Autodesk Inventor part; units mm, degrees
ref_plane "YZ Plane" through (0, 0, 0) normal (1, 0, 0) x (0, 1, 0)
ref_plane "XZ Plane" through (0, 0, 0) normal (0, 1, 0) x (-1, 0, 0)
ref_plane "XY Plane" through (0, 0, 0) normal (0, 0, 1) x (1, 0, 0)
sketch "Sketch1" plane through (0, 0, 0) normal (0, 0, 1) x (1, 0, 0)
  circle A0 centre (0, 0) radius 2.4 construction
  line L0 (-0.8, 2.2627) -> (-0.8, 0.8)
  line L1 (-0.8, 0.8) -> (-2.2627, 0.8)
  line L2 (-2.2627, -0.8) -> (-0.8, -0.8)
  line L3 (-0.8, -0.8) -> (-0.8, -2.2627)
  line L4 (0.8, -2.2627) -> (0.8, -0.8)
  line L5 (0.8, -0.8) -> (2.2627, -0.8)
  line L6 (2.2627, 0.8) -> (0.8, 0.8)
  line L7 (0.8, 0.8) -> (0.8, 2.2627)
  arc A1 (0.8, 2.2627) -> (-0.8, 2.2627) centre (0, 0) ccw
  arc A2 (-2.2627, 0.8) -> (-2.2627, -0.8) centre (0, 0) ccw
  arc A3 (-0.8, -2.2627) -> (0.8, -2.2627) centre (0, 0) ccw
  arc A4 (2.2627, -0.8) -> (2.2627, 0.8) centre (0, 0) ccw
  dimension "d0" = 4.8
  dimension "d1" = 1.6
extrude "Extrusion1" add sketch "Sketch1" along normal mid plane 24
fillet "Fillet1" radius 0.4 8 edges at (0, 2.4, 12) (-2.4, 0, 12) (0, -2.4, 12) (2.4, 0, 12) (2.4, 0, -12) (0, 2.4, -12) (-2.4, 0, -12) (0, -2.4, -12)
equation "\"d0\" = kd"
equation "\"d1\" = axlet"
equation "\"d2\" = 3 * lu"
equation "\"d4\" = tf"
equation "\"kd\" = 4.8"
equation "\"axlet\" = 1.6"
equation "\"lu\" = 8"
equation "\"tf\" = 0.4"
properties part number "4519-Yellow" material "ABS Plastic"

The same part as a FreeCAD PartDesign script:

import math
import FreeCAD as App
import Part
import Sketcher
from FreeCAD import Vector
Q = App.Units.Quantity


def edges_at(feature, points):
    """Names of the edges that pass closest to the given points."""
    edges = feature.Shape.Edges
    near = lambda p: min(range(len(edges)), key=lambda i: edges[i].distToShape(Part.Vertex(*p))[0])
    return sorted({f"Edge{near(p) + 1}" for p in points})

doc = App.newDocument("Part")
body = doc.addObject("PartDesign::Body", "Body")

# Sketch on XY plane
sketch1 = doc.addObject("Sketcher::SketchObject", "Sketch")
body.addObject(sketch1)
sketch1.AttachmentSupport = (doc.XY_Plane, [""])
sketch1.MapMode = "FlatFace"
sketch1.addGeometry([
    Part.ArcOfCircle(Part.Circle(Vector(0, 0, 0), Vector(0, 0, 1), 2.4), math.radians(71), math.radians(109)),  # 0
    Part.LineSegment(Vector(-0.8, 2.3, 0), Vector(-0.8, 0.8, 0)),  # 1
    Part.LineSegment(Vector(-0.8, 0.8, 0), Vector(-2.3, 0.8, 0)),  # 2
    Part.ArcOfCircle(Part.Circle(Vector(0, 0, 0), Vector(0, 0, 1), 2.4), math.radians(161), math.radians(199)),  # 3
    Part.LineSegment(Vector(-2.3, -0.8, 0), Vector(-0.8, -0.8, 0)),  # 4
    Part.LineSegment(Vector(-0.8, -0.8, 0), Vector(-0.8, -2.3, 0)),  # 5
    Part.ArcOfCircle(Part.Circle(Vector(0, 0, 0), Vector(0, 0, 1), 2.4), math.radians(-109), math.radians(-71)),  # 6
    Part.LineSegment(Vector(0.8, -2.3, 0), Vector(0.8, -0.8, 0)),  # 7
    Part.LineSegment(Vector(0.8, -0.8, 0), Vector(2.3, -0.8, 0)),  # 8
    Part.ArcOfCircle(Part.Circle(Vector(0, 0, 0), Vector(0, 0, 1), 2.4), math.radians(-19), math.radians(19)),  # 9
    Part.LineSegment(Vector(2.3, 0.8, 0), Vector(0.8, 0.8, 0)),  # 10
    Part.LineSegment(Vector(0.8, 0.8, 0), Vector(0.8, 2.3, 0)),  # 11
], False)
sketch1.addConstraint([
    Sketcher.Constraint("Coincident", 0, 2, 1, 1),
    Sketcher.Constraint("Coincident", 1, 2, 2, 1),
    Sketcher.Constraint("Coincident", 2, 2, 3, 1),
    Sketcher.Constraint("Coincident", 3, 2, 4, 1),
    Sketcher.Constraint("Coincident", 4, 2, 5, 1),
    Sketcher.Constraint("Coincident", 5, 2, 6, 1),
    Sketcher.Constraint("Coincident", 6, 2, 7, 1),
    Sketcher.Constraint("Coincident", 7, 2, 8, 1),
    Sketcher.Constraint("Coincident", 8, 2, 9, 1),
    Sketcher.Constraint("Coincident", 9, 2, 10, 1),
    Sketcher.Constraint("Coincident", 10, 2, 11, 1),
    Sketcher.Constraint("Coincident", 11, 2, 0, 1),
    Sketcher.Constraint("Vertical", 1),
    Sketcher.Constraint("Horizontal", 2),
    Sketcher.Constraint("Horizontal", 4),
    Sketcher.Constraint("Vertical", 5),
    Sketcher.Constraint("Vertical", 7),
    Sketcher.Constraint("Horizontal", 8),
    Sketcher.Constraint("Horizontal", 10),
    Sketcher.Constraint("Vertical", 11),
    Sketcher.Constraint("Coincident", 0, 3, -1, 1),
    Sketcher.Constraint("Coincident", 3, 3, -1, 1),
    Sketcher.Constraint("Coincident", 6, 3, -1, 1),
    Sketcher.Constraint("Coincident", 9, 3, -1, 1),
    Sketcher.Constraint("Equal", 0, 3),
    Sketcher.Constraint("Equal", 3, 6),
    Sketcher.Constraint("Equal", 6, 9),
    Sketcher.Constraint("Symmetric", 1, 2, 7, 2, -1, 1),
    Sketcher.Constraint("Symmetric", 4, 2, 10, 2, -1, 1),
    Sketcher.Constraint("Symmetric", 4, 2, 7, 2, -2),
    Sketcher.Constraint("Equal", 10, 1),
    Sketcher.Constraint("Radius", 0, Q("2.4 mm")),
    Sketcher.Constraint("DistanceY", 3, 2, 2, 2, Q("1.6 mm")),
])
pad1 = doc.addObject("PartDesign::Pad", "Pad")
body.addObject(pad1)
pad1.Profile = sketch1
pad1.Length = 24
pad1.Midplane = True
doc.recompute()

fillet = doc.addObject("PartDesign::Fillet", "Fillet")
body.addObject(fillet)
fillet.Base = (pad1, edges_at(pad1, [
    (0, 2.4, 12),
    (-2.4, 0, 12),
    (0, -2.4, 12),
    (2.4, 0, 12),
    (2.4, 0, -12),
    (0, 2.4, -12),
    (-2.4, 0, -12),
    (0, -2.4, -12),
]))
fillet.Radius = 0.4

doc.recompute()
